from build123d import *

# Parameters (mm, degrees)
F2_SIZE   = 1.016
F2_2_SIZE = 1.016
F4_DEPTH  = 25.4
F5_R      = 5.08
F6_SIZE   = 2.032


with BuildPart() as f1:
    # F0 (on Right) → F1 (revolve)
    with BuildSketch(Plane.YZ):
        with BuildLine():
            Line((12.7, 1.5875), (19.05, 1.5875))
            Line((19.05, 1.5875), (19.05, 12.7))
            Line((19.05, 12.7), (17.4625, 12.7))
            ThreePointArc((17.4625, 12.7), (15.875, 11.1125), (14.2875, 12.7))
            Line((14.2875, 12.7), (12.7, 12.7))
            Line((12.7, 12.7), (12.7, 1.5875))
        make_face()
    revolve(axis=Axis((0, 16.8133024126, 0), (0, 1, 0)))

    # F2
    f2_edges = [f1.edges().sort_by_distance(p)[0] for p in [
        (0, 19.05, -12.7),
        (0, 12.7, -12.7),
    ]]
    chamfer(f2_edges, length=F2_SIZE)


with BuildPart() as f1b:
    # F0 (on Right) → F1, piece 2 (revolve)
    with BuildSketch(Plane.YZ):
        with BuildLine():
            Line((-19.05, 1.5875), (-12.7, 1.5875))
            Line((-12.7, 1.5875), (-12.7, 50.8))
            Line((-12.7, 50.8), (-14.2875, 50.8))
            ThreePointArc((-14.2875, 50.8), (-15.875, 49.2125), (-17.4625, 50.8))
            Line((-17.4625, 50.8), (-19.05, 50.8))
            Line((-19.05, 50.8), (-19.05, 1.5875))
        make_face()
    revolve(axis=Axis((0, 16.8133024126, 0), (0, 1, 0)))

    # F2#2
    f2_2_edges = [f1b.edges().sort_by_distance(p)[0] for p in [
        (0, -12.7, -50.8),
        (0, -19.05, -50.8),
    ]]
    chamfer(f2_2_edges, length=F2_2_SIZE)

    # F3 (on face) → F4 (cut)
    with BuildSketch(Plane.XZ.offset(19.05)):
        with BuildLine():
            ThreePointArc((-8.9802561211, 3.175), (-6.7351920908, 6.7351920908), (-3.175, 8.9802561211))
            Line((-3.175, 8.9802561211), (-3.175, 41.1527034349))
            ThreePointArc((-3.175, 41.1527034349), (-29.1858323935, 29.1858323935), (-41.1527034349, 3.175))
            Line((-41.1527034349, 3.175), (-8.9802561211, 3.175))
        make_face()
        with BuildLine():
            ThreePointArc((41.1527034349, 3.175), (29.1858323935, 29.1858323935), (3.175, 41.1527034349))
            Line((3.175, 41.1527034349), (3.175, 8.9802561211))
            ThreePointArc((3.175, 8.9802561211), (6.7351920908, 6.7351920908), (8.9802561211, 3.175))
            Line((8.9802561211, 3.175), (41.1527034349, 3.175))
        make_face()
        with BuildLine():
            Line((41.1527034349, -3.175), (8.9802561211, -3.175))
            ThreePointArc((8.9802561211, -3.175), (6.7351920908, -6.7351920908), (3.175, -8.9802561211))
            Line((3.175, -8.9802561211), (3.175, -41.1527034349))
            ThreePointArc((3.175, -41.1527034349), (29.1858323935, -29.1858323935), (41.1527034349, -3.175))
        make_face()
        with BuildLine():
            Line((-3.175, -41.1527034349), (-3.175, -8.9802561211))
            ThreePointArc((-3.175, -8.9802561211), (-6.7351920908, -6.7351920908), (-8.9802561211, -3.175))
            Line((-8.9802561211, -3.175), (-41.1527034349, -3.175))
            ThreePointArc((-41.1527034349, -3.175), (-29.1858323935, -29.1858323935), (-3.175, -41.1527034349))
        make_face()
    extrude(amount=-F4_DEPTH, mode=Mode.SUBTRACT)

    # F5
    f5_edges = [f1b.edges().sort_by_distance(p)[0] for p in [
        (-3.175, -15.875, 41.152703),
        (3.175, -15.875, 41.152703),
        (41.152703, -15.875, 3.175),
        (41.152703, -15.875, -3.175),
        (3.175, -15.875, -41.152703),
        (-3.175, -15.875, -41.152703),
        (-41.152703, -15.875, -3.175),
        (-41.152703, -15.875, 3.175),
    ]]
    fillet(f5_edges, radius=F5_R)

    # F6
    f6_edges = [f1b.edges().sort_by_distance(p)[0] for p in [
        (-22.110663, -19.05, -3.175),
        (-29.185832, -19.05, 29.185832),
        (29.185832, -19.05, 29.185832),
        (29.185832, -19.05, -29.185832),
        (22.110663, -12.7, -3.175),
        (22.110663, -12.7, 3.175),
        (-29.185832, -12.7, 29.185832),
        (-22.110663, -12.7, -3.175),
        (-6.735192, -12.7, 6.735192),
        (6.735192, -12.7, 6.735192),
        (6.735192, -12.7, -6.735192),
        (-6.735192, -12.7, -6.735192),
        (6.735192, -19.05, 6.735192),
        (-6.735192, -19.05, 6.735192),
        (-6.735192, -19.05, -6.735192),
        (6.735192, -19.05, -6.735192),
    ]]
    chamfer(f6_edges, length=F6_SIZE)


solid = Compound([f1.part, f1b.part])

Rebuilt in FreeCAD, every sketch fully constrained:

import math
import FreeCAD as App
import Part
import Sketcher
Q = App.Units.Quantity


def edges_at(feature, points):
    """Names of the edges that pass closest to the given points."""
    edges = feature.Shape.Edges
    near = lambda p: min(range(len(edges)), key=lambda i: edges[i].distToShape(Part.Vertex(*p))[0])
    return sorted({f"Edge{near(p) + 1}" for p in points})

doc = App.newDocument("Part")
params = doc.addObject("Spreadsheet::Sheet", "Params")
for row, (alias, value) in enumerate([
    ("sketch1_radius", "0.0625 in"),
    ("sketch1_width", "0.25 in"),
    ("sketch1_height", "0.4375 in"),
    ("revolution_angle", "360 deg"),
    ("chamfer_size", "0.04 in"),
    ("sketch2_radius", "0.0625 in"),
    ("sketch2_width", "0.25 in"),
    ("sketch2_height", "1.9375 in"),
    ("revolution2_angle", "360 deg"),
    ("chamfer2_size", "0.04 in"),
    ("sketch3_radius", "0.375 in"),
    ("sketch3_radius2", "1.625 in"),
    ("pocket1_length", "1 in"),
    ("fillet_radius", "0.2 in"),
    ("chamfer3_size", "0.08 in"),
], start=1):
    params.set(f"A{row}", alias)
    params.set(f"B{row}", "=" + value)
    params.setAlias(f"B{row}", alias)

body = doc.addObject("PartDesign::Body", "Body")

sketch1 = body.newObject("Sketcher::SketchObject", "Sketch")
sketch1.AttachmentSupport = (doc.getObject("YZ_Plane"), [""])
sketch1.MapMode = "FlatFace"
sketch1.addGeometry([
    Part.LineSegment(App.Vector(12.7, 1.6, 0), App.Vector(19.1, 1.6, 0)),
    Part.LineSegment(App.Vector(19.1, 1.6, 0), App.Vector(19.1, 12.7, 0)),
    Part.LineSegment(App.Vector(19.1, 12.7, 0), App.Vector(17.5, 12.7, 0)),
    Part.ArcOfCircle(Part.Circle(App.Vector(15.9, 12.7, 0), App.Vector(0, 0, 1), 1.6), math.radians(180), math.radians(360)),
    Part.LineSegment(App.Vector(14.3, 12.7, 0), App.Vector(12.7, 12.7, 0)),
    Part.LineSegment(App.Vector(12.7, 12.7, 0), App.Vector(12.7, 1.6, 0)),
], False)
sketch1.addConstraint([
    Sketcher.Constraint("Coincident", 0, 2, 1, 1),
    Sketcher.Constraint("Coincident", 1, 2, 2, 1),
    Sketcher.Constraint("Coincident", 2, 2, 3, 2),
    Sketcher.Constraint("Coincident", 3, 1, 4, 1),
    Sketcher.Constraint("Coincident", 4, 2, 5, 1),
    Sketcher.Constraint("Coincident", 5, 2, 0, 1),
    Sketcher.Constraint("Horizontal", 0),
    Sketcher.Constraint("Vertical", 1),
    Sketcher.Constraint("Horizontal", 2),
    Sketcher.Constraint("Horizontal", 4),
    Sketcher.Constraint("Vertical", 5),
    Sketcher.Constraint("Horizontal", 3, 3, 1, 2),
    Sketcher.Constraint("Horizontal", 2, 2, 3, 1),
    Sketcher.Constraint("Equal", 2, 4),
    Sketcher.Constraint("Radius", 3, Q("0.0625 in")),
    Sketcher.Constraint("DistanceX", 0, 1, 0, 2, Q("0.25 in")),
    Sketcher.Constraint("DistanceY", -1, 1, 3, 3, Q("0.5 in")),
    Sketcher.Constraint("DistanceX", -1, 1, 4, 2, Q("0.5 in")),
    Sketcher.Constraint("DistanceY", 1, 1, 1, 2, Q("0.4375 in")),
])
sketch1.setExpression("Constraints[14]", "Params.sketch1_radius")
sketch1.setExpression("Constraints[15]", "Params.sketch1_width")
sketch1.setExpression("Constraints[18]", "Params.sketch1_height")
revolution = body.newObject("PartDesign::Revolution", "Revolution")
revolution.Profile = sketch1
revolution.ReferenceAxis = (sketch1, ["H_Axis"])
revolution.setExpression("Angle", "Params.revolution_angle")
doc.recompute()

chamfer = body.newObject("PartDesign::Chamfer", "Chamfer")
chamfer.Base = (revolution, edges_at(revolution, [(0, 19.05, -12.7), (0, 12.7, -12.7)]))
chamfer.setExpression("Size", "Params.chamfer_size")
body2 = doc.addObject("PartDesign::Body", "Body001")

sketch2 = body2.newObject("Sketcher::SketchObject", "Sketch001")
sketch2.AttachmentSupport = (doc.getObject("YZ_Plane001"), [""])
sketch2.MapMode = "FlatFace"
sketch2.addGeometry([
    Part.LineSegment(App.Vector(-19.1, 1.6, 0), App.Vector(-12.7, 1.6, 0)),
    Part.LineSegment(App.Vector(-12.7, 1.6, 0), App.Vector(-12.7, 50.8, 0)),
    Part.LineSegment(App.Vector(-12.7, 50.8, 0), App.Vector(-14.3, 50.8, 0)),
    Part.ArcOfCircle(Part.Circle(App.Vector(-15.9, 50.8, 0), App.Vector(0, 0, 1), 1.6), math.radians(180), math.radians(360)),
    Part.LineSegment(App.Vector(-17.5, 50.8, 0), App.Vector(-19.1, 50.8, 0)),
    Part.LineSegment(App.Vector(-19.1, 50.8, 0), App.Vector(-19.1, 1.6, 0)),
], False)
sketch2.addConstraint([
    Sketcher.Constraint("Coincident", 0, 2, 1, 1),
    Sketcher.Constraint("Coincident", 1, 2, 2, 1),
    Sketcher.Constraint("Coincident", 2, 2, 3, 2),
    Sketcher.Constraint("Coincident", 3, 1, 4, 1),
    Sketcher.Constraint("Coincident", 4, 2, 5, 1),
    Sketcher.Constraint("Coincident", 5, 2, 0, 1),
    Sketcher.Constraint("Horizontal", 0),
    Sketcher.Constraint("Vertical", 1),
    Sketcher.Constraint("Horizontal", 2),
    Sketcher.Constraint("Horizontal", 4),
    Sketcher.Constraint("Vertical", 5),
    Sketcher.Constraint("Horizontal", 3, 3, 1, 2),
    Sketcher.Constraint("Horizontal", 2, 2, 3, 1),
    Sketcher.Constraint("Equal", 2, 4),
    Sketcher.Constraint("DistanceY", -1, 1, 3, 3, Q("2 in")),
    Sketcher.Constraint("Radius", 3, Q("0.0625 in")),
    Sketcher.Constraint("DistanceX", 0, 1, 0, 2, Q("0.25 in")),
    Sketcher.Constraint("DistanceX", 0, 2, -1, 1, Q("0.5 in")),
    Sketcher.Constraint("DistanceY", 1, 1, 1, 2, Q("1.9375 in")),
])
sketch2.setExpression("Constraints[15]", "Params.sketch2_radius")
sketch2.setExpression("Constraints[16]", "Params.sketch2_width")
sketch2.setExpression("Constraints[18]", "Params.sketch2_height")
revolution2 = body2.newObject("PartDesign::Revolution", "Revolution001")
revolution2.Profile = sketch2
revolution2.ReferenceAxis = (sketch2, ["H_Axis"])
revolution2.setExpression("Angle", "Params.revolution2_angle")
doc.recompute()

chamfer2 = body2.newObject("PartDesign::Chamfer", "Chamfer001")
chamfer2.Base = (revolution2, edges_at(revolution2, [(0, -12.7, -50.8), (0, -19.05, -50.8)]))
chamfer2.setExpression("Size", "Params.chamfer2_size")

sketch3 = body2.newObject("Sketcher::SketchObject", "Sketch002")
sketch3.AttachmentSupport = (doc.getObject("XZ_Plane001"), [""])
sketch3.MapMode = "FlatFace"
sketch3.AttachmentOffset = App.Placement(App.Vector(0, 0, 0.75 * 25.4), App.Rotation())
sketch3.addGeometry([
    Part.ArcOfCircle(Part.Circle(App.Vector(0, 0, 0), App.Vector(0, 0, 1), 10), math.radians(109), math.radians(161)),
    Part.LineSegment(App.Vector(-3, 9, 0), App.Vector(-3, 41, 0)),
    Part.ArcOfCircle(Part.Circle(App.Vector(0, 0, 0), App.Vector(0, 0, 1), 41), math.radians(94), math.radians(176)),
    Part.LineSegment(App.Vector(-41, 3, 0), App.Vector(-9, 3, 0)),
    Part.ArcOfCircle(Part.Circle(App.Vector(0, 0, 0), App.Vector(0, 0, 1), 41), math.radians(4), math.radians(86)),
    Part.LineSegment(App.Vector(3, 41, 0), App.Vector(3, 9, 0)),
    Part.ArcOfCircle(Part.Circle(App.Vector(0, 0, 0), App.Vector(0, 0, 1), 10), math.radians(19), math.radians(71)),
    Part.LineSegment(App.Vector(9, 3, 0), App.Vector(41, 3, 0)),
    Part.LineSegment(App.Vector(41, -3, 0), App.Vector(9, -3, 0)),
    Part.ArcOfCircle(Part.Circle(App.Vector(0, 0, 0), App.Vector(0, 0, 1), 10), math.radians(-71), math.radians(-19)),
    Part.LineSegment(App.Vector(3, -9, 0), App.Vector(3, -41, 0)),
    Part.ArcOfCircle(Part.Circle(App.Vector(0, 0, 0), App.Vector(0, 0, 1), 41), math.radians(-86), math.radians(-4)),
    Part.LineSegment(App.Vector(-3, -41, 0), App.Vector(-3, -9, 0)),
    Part.ArcOfCircle(Part.Circle(App.Vector(0, 0, 0), App.Vector(0, 0, 1), 10), math.radians(-161), math.radians(-109)),
    Part.LineSegment(App.Vector(-9, -3, 0), App.Vector(-41, -3, 0)),
    Part.ArcOfCircle(Part.Circle(App.Vector(0, 0, 0), App.Vector(0, 0, 1), 41), math.radians(-176), math.radians(-94)),
], False)
sketch3.addConstraint([
    Sketcher.Constraint("Coincident", 0, 1, 1, 1),
    Sketcher.Constraint("Coincident", 1, 2, 2, 1),
    Sketcher.Constraint("Coincident", 2, 2, 3, 1),
    Sketcher.Constraint("Coincident", 3, 2, 0, 2),
    Sketcher.Constraint("Coincident", 4, 2, 5, 1),
    Sketcher.Constraint("Coincident", 5, 2, 6, 2),
    Sketcher.Constraint("Coincident", 6, 1, 7, 1),
    Sketcher.Constraint("Coincident", 7, 2, 4, 1),
    Sketcher.Constraint("Coincident", 8, 2, 9, 2),
    Sketcher.Constraint("Coincident", 9, 1, 10, 1),
    Sketcher.Constraint("Coincident", 10, 2, 11, 1),
    Sketcher.Constraint("Coincident", 11, 2, 8, 1),
    Sketcher.Constraint("Coincident", 12, 2, 13, 2),
    Sketcher.Constraint("Coincident", 13, 1, 14, 1),
    Sketcher.Constraint("Coincident", 14, 2, 15, 1),
    Sketcher.Constraint("Coincident", 15, 2, 12, 1),
    Sketcher.Constraint("Vertical", 1),
    Sketcher.Constraint("Horizontal", 3),
    Sketcher.Constraint("Vertical", 5),
    Sketcher.Constraint("Horizontal", 7),
    Sketcher.Constraint("Horizontal", 8),
    Sketcher.Constraint("Vertical", 10),
    Sketcher.Constraint("Vertical", 12),
    Sketcher.Constraint("Horizontal", 14),
    Sketcher.Constraint("Coincident", 0, 3, -1, 1),
    Sketcher.Constraint("Coincident", 2, 3, -1, 1),
    Sketcher.Constraint("Coincident", 4, 3, -1, 1),
    Sketcher.Constraint("Coincident", 6, 3, -1, 1),
    Sketcher.Constraint("Coincident", 9, 3, -1, 1),
    Sketcher.Constraint("Coincident", 11, 3, -1, 1),
    Sketcher.Constraint("Coincident", 13, 3, -1, 1),
    Sketcher.Constraint("Coincident", 15, 3, -1, 1),
    Sketcher.Constraint("Equal", 2, 4),
    Sketcher.Constraint("Equal", 0, 6),
    Sketcher.Constraint("Equal", 6, 9),
    Sketcher.Constraint("Equal", 4, 11),
    Sketcher.Constraint("Equal", 9, 13),
    Sketcher.Constraint("Equal", 11, 15),
    Sketcher.Constraint("Horizontal", 1, 2, 4, 2),
    Sketcher.Constraint("Horizontal", 3, 2, 6, 1),
    Sketcher.Constraint("Horizontal", 9, 1, 12, 2),
    Sketcher.Constraint("Horizontal", 11, 2, 13, 1),
    Sketcher.Constraint("Vertical", 6, 1, 8, 2),
    Sketcher.Constraint("Vertical", 5, 2, 9, 1),
    Sketcher.Constraint("Equal", 14, 1),
    Sketcher.Constraint("Radius", 0, Q("0.375 in")),
    Sketcher.Constraint("Radius", 2, Q("1.625 in")),
    Sketcher.Constraint("DistanceX", 1, 2, 4, 2, Q("0.25 in")),
])
sketch3.setExpression("Constraints[45]", "Params.sketch3_radius")
sketch3.setExpression("Constraints[46]", "Params.sketch3_radius2")
pocket1 = body2.newObject("PartDesign::Pocket", "Pocket")
pocket1.Profile = sketch3
pocket1.setExpression("Length", "Params.pocket1_length")
doc.recompute()

fillet = body2.newObject("PartDesign::Fillet", "Fillet")
fillet.Base = (pocket1, edges_at(pocket1, [
    (-3.175, -15.875, 41.153),
    (3.175, -15.875, 41.153),
    (41.153, -15.875, 3.175),
    (41.153, -15.875, -3.175),
    (3.175, -15.875, -41.153),
    (-3.175, -15.875, -41.153),
    (-41.153, -15.875, -3.175),
    (-41.153, -15.875, 3.175),
]))
fillet.setExpression("Radius", "Params.fillet_radius")
doc.recompute()

chamfer3 = body2.newObject("PartDesign::Chamfer", "Chamfer002")
chamfer3.Base = (fillet, edges_at(fillet, [
    (-22.111, -19.05, -3.175),
    (-29.186, -19.05, 29.186),
    (29.186, -19.05, 29.186),
    (29.186, -19.05, -29.186),
    (22.111, -12.7, -3.175),
    (22.111, -12.7, 3.175),
    (-29.186, -12.7, 29.186),
    (-22.111, -12.7, -3.175),
    (-6.735, -12.7, 6.735),
    (6.735, -12.7, 6.735),
    (6.735, -12.7, -6.735),
    (-6.735, -12.7, -6.735),
    (6.735, -19.05, 6.735),
    (-6.735, -19.05, 6.735),
    (-6.735, -19.05, -6.735),
    (6.735, -19.05, -6.735),
]))
chamfer3.setExpression("Size", "Params.chamfer3_size")

doc.recompute()
